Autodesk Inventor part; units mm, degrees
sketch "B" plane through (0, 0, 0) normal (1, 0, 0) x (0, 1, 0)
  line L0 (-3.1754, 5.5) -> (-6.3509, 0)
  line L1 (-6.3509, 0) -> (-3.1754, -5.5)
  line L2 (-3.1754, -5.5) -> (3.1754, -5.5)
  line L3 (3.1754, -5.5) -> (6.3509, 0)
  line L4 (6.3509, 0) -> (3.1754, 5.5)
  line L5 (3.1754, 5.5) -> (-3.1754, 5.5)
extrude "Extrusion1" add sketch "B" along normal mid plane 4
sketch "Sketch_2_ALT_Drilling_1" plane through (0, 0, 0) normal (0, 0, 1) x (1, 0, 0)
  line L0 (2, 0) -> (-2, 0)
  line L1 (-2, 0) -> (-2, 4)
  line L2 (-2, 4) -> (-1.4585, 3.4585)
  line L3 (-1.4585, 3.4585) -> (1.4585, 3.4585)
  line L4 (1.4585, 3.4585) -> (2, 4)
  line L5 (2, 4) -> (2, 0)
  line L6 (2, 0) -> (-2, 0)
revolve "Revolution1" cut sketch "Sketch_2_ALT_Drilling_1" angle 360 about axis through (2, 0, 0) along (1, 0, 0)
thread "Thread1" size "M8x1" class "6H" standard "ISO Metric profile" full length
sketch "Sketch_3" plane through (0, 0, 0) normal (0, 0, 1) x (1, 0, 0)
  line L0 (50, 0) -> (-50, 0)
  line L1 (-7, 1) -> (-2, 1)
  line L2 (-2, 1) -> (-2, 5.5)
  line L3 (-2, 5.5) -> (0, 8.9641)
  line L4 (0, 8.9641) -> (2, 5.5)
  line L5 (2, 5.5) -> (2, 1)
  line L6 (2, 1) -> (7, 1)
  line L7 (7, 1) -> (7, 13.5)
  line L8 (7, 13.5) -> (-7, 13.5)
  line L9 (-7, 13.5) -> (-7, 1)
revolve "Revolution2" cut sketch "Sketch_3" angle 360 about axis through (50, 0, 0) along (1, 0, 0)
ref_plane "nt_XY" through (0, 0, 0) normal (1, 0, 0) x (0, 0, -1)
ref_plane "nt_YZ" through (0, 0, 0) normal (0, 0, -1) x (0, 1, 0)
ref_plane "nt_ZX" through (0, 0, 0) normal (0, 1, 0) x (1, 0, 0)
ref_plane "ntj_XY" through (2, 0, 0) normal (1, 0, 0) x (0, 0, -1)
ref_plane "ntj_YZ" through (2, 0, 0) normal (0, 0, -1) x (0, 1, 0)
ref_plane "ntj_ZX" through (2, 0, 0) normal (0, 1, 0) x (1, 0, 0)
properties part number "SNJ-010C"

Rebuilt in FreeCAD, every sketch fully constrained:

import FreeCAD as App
import Part
import Sketcher
Q = App.Units.Quantity


def add_polygon(sketch, points):
    """Adds a closed chain of lines whose ends are joined by coincident constraints."""
    first, n = sketch.GeometryCount, len(points)
    for a, b in zip(points, points[1:] + points[:1]):
        sketch.addGeometry(Part.LineSegment(App.Vector(*a, 0), App.Vector(*b, 0)), False)
    for i in range(n):
        sketch.addConstraint(Sketcher.Constraint("Coincident", first + i, 2, first + (i + 1) % n, 1))

doc = App.newDocument("Part")
body = doc.addObject("PartDesign::Body", "Body")

sketch1 = doc.addObject("Sketcher::SketchObject", "Sketch")
body.addObject(sketch1)
sketch1.AttachmentSupport = (doc.YZ_Plane, [""])
sketch1.MapMode = "FlatFace"
add_polygon(sketch1, [(3, 6), (-3, 6), (-6, 0), (-3, -6), (3, -6), (6, 0)])
sketch1.addConstraint(Sketcher.Constraint("Horizontal", 0))
sketch1.addConstraint(Sketcher.Constraint("Horizontal", 3))
sketch1.addConstraint(Sketcher.Constraint("Symmetric", 0, 2, 3, 2, -1, 1))
sketch1.addConstraint(Sketcher.Constraint("Symmetric", 1, 2, 4, 2, -1, 1))
sketch1.addConstraint(Sketcher.Constraint("PointOnObject", 1, 2, -1))
sketch1.addConstraint(Sketcher.Constraint("Parallel", 2, 5))
sketch1.addConstraint(Sketcher.Constraint("Vertical", 0, 2, 2, 2))
sketch1.addConstraint(Sketcher.Constraint("Angle", 1, Q("-120.0006 deg")))
sketch1.addConstraint(Sketcher.Constraint("DistanceY", 2, 2, 0, 2, Q("11 mm")))
sketch1.addConstraint(Sketcher.Constraint("DistanceX", 0, 2, 0, 1, Q("6.3508 mm")))
pad1 = doc.addObject("PartDesign::Pad", "Pad")
body.addObject(pad1)
pad1.Profile = sketch1
pad1.Length = 4
pad1.Midplane = True

sketch2 = doc.addObject("Sketcher::SketchObject", "Sketch001")
body.addObject(sketch2)
sketch2.AttachmentSupport = (doc.XY_Plane, [""])
sketch2.MapMode = "FlatFace"
add_polygon(sketch2, [(-2, 0), (2, 0), (2, 4), (1.5, 3.5), (-1.5, 3.5), (-2, 4)])
sketch2.addConstraint(Sketcher.Constraint("Horizontal", 0))
sketch2.addConstraint(Sketcher.Constraint("Vertical", 1))
sketch2.addConstraint(Sketcher.Constraint("Horizontal", 3))
sketch2.addConstraint(Sketcher.Constraint("Vertical", 5))
sketch2.addConstraint(Sketcher.Constraint("Symmetric", 0, 2, 5, 2, -1, 1))
sketch2.addConstraint(Sketcher.Constraint("Perpendicular", 2, 4))
sketch2.addConstraint(Sketcher.Constraint("Horizontal", 1, 2, 4, 2))
sketch2.addConstraint(Sketcher.Constraint("Equal", 0, 1))
sketch2.addConstraint(Sketcher.Constraint("Equal", 2, 4))
sketch2.addConstraint(Sketcher.Constraint("DistanceX", 0, 1, 0, 2, Q("4 mm")))
sketch2.addConstraint(Sketcher.Constraint("DistanceX", 3, 2, 3, 1, Q("2.917 mm")))
groove = doc.addObject("PartDesign::Groove", "Groove")
body.addObject(groove)
groove.Profile = sketch2
groove.ReferenceAxis = (sketch2, ["H_Axis"])
groove.Angle = 360

sketch3 = doc.addObject("Sketcher::SketchObject", "Sketch002")
body.addObject(sketch3)
sketch3.AttachmentSupport = (doc.XY_Plane, [""])
sketch3.MapMode = "FlatFace"
add_polygon(sketch3, [(-7, 13.5), (-7, 1), (-2, 1), (-2, 5.5), (0, 9), (2, 5.5), (2, 1), (7, 1), (7, 13.5)])
sketch3.addConstraint(Sketcher.Constraint("Vertical", 0))
sketch3.addConstraint(Sketcher.Constraint("Horizontal", 1))
sketch3.addConstraint(Sketcher.Constraint("Vertical", 2))
sketch3.addConstraint(Sketcher.Constraint("Vertical", 5))
sketch3.addConstraint(Sketcher.Constraint("Horizontal", 6))
sketch3.addConstraint(Sketcher.Constraint("Vertical", 7))
sketch3.addConstraint(Sketcher.Constraint("Horizontal", 8))
sketch3.addConstraint(Sketcher.Constraint("Symmetric", 2, 2, 4, 2, -2))
sketch3.addConstraint(Sketcher.Constraint("Symmetric", 0, 2, 6, 2, -2))
sketch3.addConstraint(Sketcher.Constraint("PointOnObject", 3, 2, -2))
sketch3.addConstraint(Sketcher.Constraint("DistanceX", 1, 1, 1, 2, Q("5 mm")))
sketch3.addConstraint(Sketcher.Constraint("DistanceX", 8, 2, 8, 1, Q("14 mm")))
sketch3.addConstraint(Sketcher.Constraint("Angle", 3, Q("60 deg")))
sketch3.addConstraint(Sketcher.Constraint("DistanceY", 0, 2, 0, 1, Q("12.5 mm")))
sketch3.addConstraint(Sketcher.Constraint("DistanceY", 2, 1, 2, 2, Q("4.5 mm")))
sketch3.addConstraint(Sketcher.Constraint("DistanceY", -1, 1, 0, 2, Q("1 mm")))
groove2 = doc.addObject("PartDesign::Groove", "Groove001")
body.addObject(groove2)
groove2.Profile = sketch3
groove2.ReferenceAxis = (sketch3, ["H_Axis"])
groove2.Angle = 360

doc.recompute()
